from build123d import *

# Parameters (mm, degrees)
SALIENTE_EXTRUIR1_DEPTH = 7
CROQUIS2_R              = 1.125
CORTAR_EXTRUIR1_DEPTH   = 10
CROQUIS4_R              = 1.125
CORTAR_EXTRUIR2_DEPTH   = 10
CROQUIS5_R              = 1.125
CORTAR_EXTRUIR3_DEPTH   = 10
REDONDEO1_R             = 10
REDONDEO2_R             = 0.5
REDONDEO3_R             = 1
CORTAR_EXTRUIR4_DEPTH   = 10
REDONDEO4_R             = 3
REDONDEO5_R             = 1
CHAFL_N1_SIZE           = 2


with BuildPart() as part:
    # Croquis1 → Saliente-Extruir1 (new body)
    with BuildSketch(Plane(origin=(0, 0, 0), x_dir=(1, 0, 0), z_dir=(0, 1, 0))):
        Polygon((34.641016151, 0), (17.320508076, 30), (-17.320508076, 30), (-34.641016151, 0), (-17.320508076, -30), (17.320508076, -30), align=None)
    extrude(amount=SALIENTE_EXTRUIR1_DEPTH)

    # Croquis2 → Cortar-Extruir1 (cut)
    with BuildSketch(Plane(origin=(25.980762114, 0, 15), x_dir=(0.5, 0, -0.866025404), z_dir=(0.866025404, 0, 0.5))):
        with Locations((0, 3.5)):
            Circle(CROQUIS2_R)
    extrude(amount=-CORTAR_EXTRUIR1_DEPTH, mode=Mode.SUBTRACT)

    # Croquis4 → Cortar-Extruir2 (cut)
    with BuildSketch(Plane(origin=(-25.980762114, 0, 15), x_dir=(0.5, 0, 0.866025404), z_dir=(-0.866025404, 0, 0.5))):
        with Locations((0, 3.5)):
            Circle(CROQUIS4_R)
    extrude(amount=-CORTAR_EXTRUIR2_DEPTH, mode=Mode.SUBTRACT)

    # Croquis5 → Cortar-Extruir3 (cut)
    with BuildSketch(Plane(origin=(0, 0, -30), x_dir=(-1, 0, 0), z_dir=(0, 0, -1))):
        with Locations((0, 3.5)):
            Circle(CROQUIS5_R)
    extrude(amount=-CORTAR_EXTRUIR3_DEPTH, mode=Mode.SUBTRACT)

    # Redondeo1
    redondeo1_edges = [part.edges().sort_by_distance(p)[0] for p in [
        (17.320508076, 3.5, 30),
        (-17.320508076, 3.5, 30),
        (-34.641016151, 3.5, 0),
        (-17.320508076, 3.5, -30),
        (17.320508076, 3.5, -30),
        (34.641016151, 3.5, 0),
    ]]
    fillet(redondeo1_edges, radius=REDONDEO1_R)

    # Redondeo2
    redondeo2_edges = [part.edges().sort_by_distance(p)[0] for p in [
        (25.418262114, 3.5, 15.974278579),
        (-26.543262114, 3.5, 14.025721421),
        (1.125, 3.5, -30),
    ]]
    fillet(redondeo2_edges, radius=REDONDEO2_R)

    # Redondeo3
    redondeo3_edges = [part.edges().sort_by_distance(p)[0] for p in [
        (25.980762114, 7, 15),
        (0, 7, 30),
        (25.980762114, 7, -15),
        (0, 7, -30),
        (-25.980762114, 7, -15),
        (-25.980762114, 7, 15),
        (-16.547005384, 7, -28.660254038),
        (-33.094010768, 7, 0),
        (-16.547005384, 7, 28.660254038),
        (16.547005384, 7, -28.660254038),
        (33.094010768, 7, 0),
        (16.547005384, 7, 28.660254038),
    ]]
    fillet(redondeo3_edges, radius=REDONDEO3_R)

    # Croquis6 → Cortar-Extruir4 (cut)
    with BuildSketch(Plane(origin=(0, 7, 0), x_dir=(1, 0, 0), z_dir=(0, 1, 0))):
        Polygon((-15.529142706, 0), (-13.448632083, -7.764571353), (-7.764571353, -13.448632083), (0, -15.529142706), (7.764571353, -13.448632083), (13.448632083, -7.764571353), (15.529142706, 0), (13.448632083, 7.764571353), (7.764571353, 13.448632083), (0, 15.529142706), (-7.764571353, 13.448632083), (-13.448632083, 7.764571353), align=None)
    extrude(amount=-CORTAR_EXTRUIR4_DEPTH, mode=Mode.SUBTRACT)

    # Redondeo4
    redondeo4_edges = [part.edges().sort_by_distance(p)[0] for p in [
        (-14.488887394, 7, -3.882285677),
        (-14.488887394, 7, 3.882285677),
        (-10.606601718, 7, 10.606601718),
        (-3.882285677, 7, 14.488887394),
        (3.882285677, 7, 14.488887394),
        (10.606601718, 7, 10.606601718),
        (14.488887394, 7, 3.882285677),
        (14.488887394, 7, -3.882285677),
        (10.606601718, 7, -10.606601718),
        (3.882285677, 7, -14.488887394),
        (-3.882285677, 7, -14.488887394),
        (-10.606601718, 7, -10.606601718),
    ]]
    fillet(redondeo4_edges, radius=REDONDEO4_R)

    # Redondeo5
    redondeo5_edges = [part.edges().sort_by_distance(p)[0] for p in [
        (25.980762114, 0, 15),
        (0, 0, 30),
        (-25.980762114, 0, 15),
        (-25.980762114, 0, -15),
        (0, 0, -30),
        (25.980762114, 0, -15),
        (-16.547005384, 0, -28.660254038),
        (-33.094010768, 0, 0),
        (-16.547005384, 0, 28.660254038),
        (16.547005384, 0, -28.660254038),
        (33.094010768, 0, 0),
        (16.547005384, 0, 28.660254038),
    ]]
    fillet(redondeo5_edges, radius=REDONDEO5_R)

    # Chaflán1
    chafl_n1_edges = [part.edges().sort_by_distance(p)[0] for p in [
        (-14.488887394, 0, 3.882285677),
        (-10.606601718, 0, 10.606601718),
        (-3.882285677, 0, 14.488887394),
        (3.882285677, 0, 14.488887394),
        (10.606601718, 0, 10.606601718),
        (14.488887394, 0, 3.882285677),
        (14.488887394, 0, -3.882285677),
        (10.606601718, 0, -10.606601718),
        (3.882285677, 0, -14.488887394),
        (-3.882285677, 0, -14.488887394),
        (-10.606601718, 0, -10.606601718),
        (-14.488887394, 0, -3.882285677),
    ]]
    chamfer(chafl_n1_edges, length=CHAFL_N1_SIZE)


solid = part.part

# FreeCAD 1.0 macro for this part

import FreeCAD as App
import Part
import Sketcher
from FreeCAD import Vector
Q = App.Units.Quantity


def edges_at(feature, points):
    """Names of the edges that pass closest to the given points."""
    edges = feature.Shape.Edges
    near = lambda p: min(range(len(edges)), key=lambda i: edges[i].distToShape(Part.Vertex(*p))[0])
    return sorted({f"Edge{near(p) + 1}" for p in points})


def add_polygon(sketch, points):
    """Adds a closed chain of lines whose ends are joined by coincident constraints."""
    first, n = sketch.GeometryCount, len(points)
    for a, b in zip(points, points[1:] + points[:1]):
        sketch.addGeometry(Part.LineSegment(App.Vector(*a, 0), App.Vector(*b, 0)), False)
    for i in range(n):
        sketch.addConstraint(Sketcher.Constraint("Coincident", first + i, 2, first + (i + 1) % n, 1))

doc = App.newDocument("Part")
body = doc.addObject("PartDesign::Body", "Body")

# Sketch on XZ plane
sketch1 = body.newObject("Sketcher::SketchObject", "Sketch")
sketch1.AttachmentSupport = (doc.getObject("XZ_Plane"), [""])
sketch1.MapMode = "FlatFace"
add_polygon(sketch1, [(34.641016, 0), (17.320508, -30), (-17.320508, -30), (-34.641016, 0), (-17.320508, 30), (17.320508, 30)])  # lines 0-5
sketch1.addConstraint(Sketcher.Constraint("Horizontal", 1))
sketch1.addConstraint(Sketcher.Constraint("Horizontal", 4))
sketch1.addConstraint(Sketcher.Constraint("Symmetric", 0, 2, 3, 2, -1, 1))
sketch1.addConstraint(Sketcher.Constraint("Symmetric", 2, 2, 5, 2, -1, 1))
sketch1.addConstraint(Sketcher.Constraint("PointOnObject", 2, 2, -1))
sketch1.addConstraint(Sketcher.Constraint("Parallel", 2, 5))
sketch1.addConstraint(Sketcher.Constraint("Vertical", 1, 2, 3, 2))
sketch1.addConstraint(Sketcher.Constraint("Angle", 0, Q("-120 deg")))
sketch1.addConstraint(Sketcher.Constraint("DistanceY", 0, 2, -1, 1, 30.0))
sketch1.addConstraint(Sketcher.Constraint("DistanceX", 1, 2, 1, 1, 34.641016))
pad1 = body.newObject("PartDesign::Pad", "Pad")
pad1.Profile = sketch1
pad1.Length = 7
pad1.Reversed = True

# Sketch on an angled plane
sketch2 = body.newObject("Sketcher::SketchObject", "Sketch001")
sketch2.Placement = App.Placement(Vector(25.980762, 0, 15), App.Rotation(Vector(0.5, 0, -0.866025404), Vector(0, 1, 0), Vector(0.866025404, 0, 0.5), "ZXY"))
sketch2.addGeometry(Part.Circle(Vector(0, 3.5, 0), Vector(0, 0, 1), 1.125), False)
sketch2.addConstraint(Sketcher.Constraint("PointOnObject", 0, 3, -2))
sketch2.addConstraint(Sketcher.Constraint("Diameter", 0, 2.25))
sketch2.addConstraint(Sketcher.Constraint("DistanceY", -1, 1, 0, 3, 3.5))
pocket1 = body.newObject("PartDesign::Pocket", "Pocket")
pocket1.Profile = sketch2
pocket1.Length = 10

# Sketch on an angled plane
sketch3 = body.newObject("Sketcher::SketchObject", "Sketch002")
sketch3.Placement = App.Placement(Vector(-25.980762, 0, 15), App.Rotation(Vector(0.5, 0, 0.866025404), Vector(0, 1, 0), Vector(-0.866025404, 0, 0.5), "ZXY"))
sketch3.addGeometry(Part.Circle(Vector(0, 3.5, 0), Vector(0, 0, 1), 1.125), False)
sketch3.addConstraint(Sketcher.Constraint("PointOnObject", 0, 3, -2))
sketch3.addConstraint(Sketcher.Constraint("Diameter", 0, 2.25))
sketch3.addConstraint(Sketcher.Constraint("DistanceY", -1, 1, 0, 3, 3.5))
pocket2 = body.newObject("PartDesign::Pocket", "Pocket001")
pocket2.Profile = sketch3
pocket2.Length = 10

# Sketch on XY plane
sketch4 = body.newObject("Sketcher::SketchObject", "Sketch003")
sketch4.AttachmentSupport = (doc.getObject("XY_Plane"), [""])
sketch4.MapMode = "FlatFace"
sketch4.AttachmentOffset = App.Placement(Vector(0, 0, -30), App.Rotation())
sketch4.addGeometry(Part.Circle(Vector(0, 3.5, 0), Vector(0, 0, 1), 1.125), False)
sketch4.addConstraint(Sketcher.Constraint("PointOnObject", 0, 3, -2))
sketch4.addConstraint(Sketcher.Constraint("Diameter", 0, 2.25))
sketch4.addConstraint(Sketcher.Constraint("DistanceY", -1, 1, 0, 3, 3.5))
pocket3 = body.newObject("PartDesign::Pocket", "Pocket002")
pocket3.Profile = sketch4
pocket3.Length = 10
pocket3.Reversed = True
doc.recompute()

fillet = body.newObject("PartDesign::Fillet", "Fillet")
fillet.Base = (pocket3, edges_at(pocket3, [
    (17.321, 3.5, 30),
    (-17.321, 3.5, 30),
    (-34.641, 3.5, 0),
    (-17.321, 3.5, -30),
    (17.321, 3.5, -30),
    (34.641, 3.5, 0),
]))
fillet.Radius = 10
doc.recompute()

fillet2 = body.newObject("PartDesign::Fillet", "Fillet001")
fillet2.Base = (fillet, edges_at(fillet, [(25.418, 3.5, 15.974), (-26.543, 3.5, 14.026), (1.125, 3.5, -30)]))
fillet2.Radius = 0.5
doc.recompute()

fillet3 = body.newObject("PartDesign::Fillet", "Fillet002")
fillet3.Base = (fillet2, edges_at(fillet2, [
    (25.981, 7, 15),
    (0, 7, 30),
    (25.981, 7, -15),
    (0, 7, -30),
    (-25.981, 7, -15),
    (-25.981, 7, 15),
    (-16.547, 7, -28.66),
    (-33.094, 7, 0),
    (-16.547, 7, 28.66),
    (16.547, 7, -28.66),
    (33.094, 7, 0),
    (16.547, 7, 28.66),
]))
fillet3.Radius = 1

# Sketch on XZ plane
sketch5 = body.newObject("Sketcher::SketchObject", "Sketch004")
sketch5.AttachmentSupport = (doc.getObject("XZ_Plane"), [""])
sketch5.MapMode = "FlatFace"
sketch5.AttachmentOffset = App.Placement(Vector(0, 0, -7), App.Rotation())
add_polygon(sketch5, [(-15.529143, 0), (-13.448632, 7.764571), (-7.764571, 13.448632), (0, 15.529143), (7.764571, 13.448632), (13.448632, 7.764571), (15.529143, 0), (13.448632, -7.764571), (7.764571, -13.448632), (0, -15.529143), (-7.764571, -13.448632), (-13.448632, -7.764571)])  # lines 0-11
sketch5.addConstraint(Sketcher.Constraint("Symmetric", 0, 2, 6, 2, -1, 1))
sketch5.addConstraint(Sketcher.Constraint("Symmetric", 1, 2, 7, 2, -1, 1))
sketch5.addConstraint(Sketcher.Constraint("Symmetric", 2, 2, 8, 2, -1, 1))
sketch5.addConstraint(Sketcher.Constraint("Symmetric", 3, 2, 9, 2, -1, 1))
sketch5.addConstraint(Sketcher.Constraint("Symmetric", 4, 2, 10, 2, -1, 1))
sketch5.addConstraint(Sketcher.Constraint("Symmetric", 5, 2, 11, 2, -1, 1))
sketch5.addConstraint(Sketcher.Constraint("Symmetric", 1, 2, 3, 2, -2))
sketch5.addConstraint(Sketcher.Constraint("Symmetric", 0, 2, 4, 2, -2))
sketch5.addConstraint(Sketcher.Constraint("PointOnObject", 2, 2, -2))
sketch5.addConstraint(Sketcher.Constraint("PointOnObject", 5, 2, -1))
sketch5.addConstraint(Sketcher.Constraint("Perpendicular", 0, 3))
sketch5.addConstraint(Sketcher.Constraint("Perpendicular", 1, 4))
sketch5.addConstraint(Sketcher.Constraint("Equal", 0, 1))
sketch5.addConstraint(Sketcher.Constraint("Equal", 1, 2))
sketch5.addConstraint(Sketcher.Constraint("Angle", 0, Q("75 deg")))
sketch5.addConstraint(Sketcher.Constraint("DistanceY", -1, 1, 0, 2, 7.764571))
pocket4 = body.newObject("PartDesign::Pocket", "Pocket003")
pocket4.Profile = sketch5
pocket4.Length = 10
pocket4.Reversed = True
doc.recompute()

fillet4 = body.newObject("PartDesign::Fillet", "Fillet003")
fillet4.Base = (pocket4, edges_at(pocket4, [
    (-14.489, 7, -3.882),
    (-14.489, 7, 3.882),
    (-10.607, 7, 10.607),
    (-3.882, 7, 14.489),
    (3.882, 7, 14.489),
    (10.607, 7, 10.607),
    (14.489, 7, 3.882),
    (14.489, 7, -3.882),
    (10.607, 7, -10.607),
    (3.882, 7, -14.489),
    (-3.882, 7, -14.489),
    (-10.607, 7, -10.607),
]))
fillet4.Radius = 3
doc.recompute()

fillet5 = body.newObject("PartDesign::Fillet", "Fillet004")
fillet5.Base = (fillet4, edges_at(fillet4, [
    (25.981, 0, 15),
    (0, 0, 30),
    (-25.981, 0, 15),
    (-25.981, 0, -15),
    (0, 0, -30),
    (25.981, 0, -15),
    (-16.547, 0, -28.66),
    (-33.094, 0, 0),
    (-16.547, 0, 28.66),
    (16.547, 0, -28.66),
    (33.094, 0, 0),
    (16.547, 0, 28.66),
]))
fillet5.Radius = 1
doc.recompute()

chamfer = body.newObject("PartDesign::Chamfer", "Chamfer")
chamfer.Base = (fillet5, edges_at(fillet5, [
    (-14.489, 0, 3.882),
    (-10.607, 0, 10.607),
    (-3.882, 0, 14.489),
    (3.882, 0, 14.489),
    (10.607, 0, 10.607),
    (14.489, 0, 3.882),
    (14.489, 0, -3.882),
    (10.607, 0, -10.607),
    (3.882, 0, -14.489),
    (-3.882, 0, -14.489),
    (-10.607, 0, -10.607),
    (-14.489, 0, -3.882),
]))
chamfer.Size = 2

doc.recompute()
